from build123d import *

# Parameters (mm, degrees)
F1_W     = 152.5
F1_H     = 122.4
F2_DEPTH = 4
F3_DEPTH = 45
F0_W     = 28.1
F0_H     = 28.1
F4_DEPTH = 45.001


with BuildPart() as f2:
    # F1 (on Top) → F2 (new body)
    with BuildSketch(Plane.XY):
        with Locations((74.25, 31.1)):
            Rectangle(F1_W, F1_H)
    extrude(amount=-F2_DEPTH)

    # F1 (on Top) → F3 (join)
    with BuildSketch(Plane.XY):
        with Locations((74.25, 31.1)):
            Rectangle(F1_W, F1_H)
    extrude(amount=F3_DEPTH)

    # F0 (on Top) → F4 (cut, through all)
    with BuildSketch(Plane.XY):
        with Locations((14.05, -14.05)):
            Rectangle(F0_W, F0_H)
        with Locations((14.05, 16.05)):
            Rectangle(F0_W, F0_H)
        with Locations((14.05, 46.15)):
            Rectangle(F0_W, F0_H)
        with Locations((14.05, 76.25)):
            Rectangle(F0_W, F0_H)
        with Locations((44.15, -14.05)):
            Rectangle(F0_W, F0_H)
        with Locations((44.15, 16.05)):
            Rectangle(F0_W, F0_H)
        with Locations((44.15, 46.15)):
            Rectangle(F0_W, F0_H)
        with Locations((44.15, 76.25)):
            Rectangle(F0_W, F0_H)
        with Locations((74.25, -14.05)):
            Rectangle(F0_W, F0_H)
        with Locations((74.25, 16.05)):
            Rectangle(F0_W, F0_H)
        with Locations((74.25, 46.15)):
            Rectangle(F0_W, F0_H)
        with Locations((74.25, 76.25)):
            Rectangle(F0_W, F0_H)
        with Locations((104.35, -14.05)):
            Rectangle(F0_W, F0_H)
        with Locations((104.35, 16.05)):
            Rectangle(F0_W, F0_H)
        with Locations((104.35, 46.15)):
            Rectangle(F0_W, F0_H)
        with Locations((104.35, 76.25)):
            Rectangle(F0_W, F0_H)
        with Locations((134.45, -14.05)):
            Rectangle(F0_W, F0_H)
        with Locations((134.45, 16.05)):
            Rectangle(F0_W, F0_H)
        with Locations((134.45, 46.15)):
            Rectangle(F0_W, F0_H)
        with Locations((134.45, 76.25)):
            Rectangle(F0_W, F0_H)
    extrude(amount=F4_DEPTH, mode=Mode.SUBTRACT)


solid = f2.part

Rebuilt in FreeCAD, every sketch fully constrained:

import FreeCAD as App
import Part
import Sketcher

V = App.Vector


def add_polygon(sketch, points):
    """Adds a closed chain of lines whose ends are joined by coincident constraints."""
    first, n = sketch.GeometryCount, len(points)
    for a, b in zip(points, points[1:] + points[:1]):
        sketch.addGeometry(Part.LineSegment(App.Vector(*a, 0), App.Vector(*b, 0)), False)
    for i in range(n):
        sketch.addConstraint(Sketcher.Constraint("Coincident", first + i, 2, first + (i + 1) % n, 1))

doc = App.newDocument("Part")
body = doc.addObject("PartDesign::Body", "Body")

# Sketch on XY plane
sketch1 = body.newObject("Sketcher::SketchObject", "Sketch")
sketch1.AttachmentSupport = (doc.getObject("XY_Plane"), [""])
sketch1.MapMode = "FlatFace"
add_polygon(sketch1, [(-2, 92), (-2, -30), (150, -30), (150, 92)])  # lines 0-3
sketch1.addConstraint(Sketcher.Constraint("Vertical", 0))
sketch1.addConstraint(Sketcher.Constraint("Horizontal", 1))
sketch1.addConstraint(Sketcher.Constraint("Vertical", 2))
sketch1.addConstraint(Sketcher.Constraint("Horizontal", 3))
sketch1.addConstraint(Sketcher.Constraint("DistanceX", 1, 1, 1, 2, 152.5))
sketch1.addConstraint(Sketcher.Constraint("DistanceY", 0, 2, 0, 1, 122.4))
sketch1.addConstraint(Sketcher.Constraint("DistanceX", 0, 2, -1, 1, 2.0))
sketch1.addConstraint(Sketcher.Constraint("DistanceY", 0, 2, -1, 1, 30.1))
pad1 = body.newObject("PartDesign::Pad", "Pad")
pad1.Profile = sketch1
pad1.Length = 4
pad1.Reversed = True

# Sketch on XY plane
sketch2 = body.newObject("Sketcher::SketchObject", "Sketch001")
sketch2.AttachmentSupport = (doc.getObject("XY_Plane"), [""])
sketch2.MapMode = "FlatFace"
add_polygon(sketch2, [(-2, 92), (-2, -30), (150, -30), (150, 92)])  # lines 0-3
sketch2.addConstraint(Sketcher.Constraint("Vertical", 0))
sketch2.addConstraint(Sketcher.Constraint("Horizontal", 1))
sketch2.addConstraint(Sketcher.Constraint("Vertical", 2))
sketch2.addConstraint(Sketcher.Constraint("Horizontal", 3))
sketch2.addConstraint(Sketcher.Constraint("DistanceX", 1, 1, 1, 2, 152.5))
sketch2.addConstraint(Sketcher.Constraint("DistanceY", 0, 2, 0, 1, 122.4))
sketch2.addConstraint(Sketcher.Constraint("DistanceX", 0, 2, -1, 1, 2.0))
sketch2.addConstraint(Sketcher.Constraint("DistanceY", 0, 2, -1, 1, 30.1))
pad2 = body.newObject("PartDesign::Pad", "Pad001")
pad2.Profile = sketch2
pad2.Length = 45

# Sketch on XY plane
sketch3 = body.newObject("Sketcher::SketchObject", "Sketch002")
sketch3.AttachmentSupport = (doc.getObject("XY_Plane"), [""])
sketch3.MapMode = "FlatFace"
add_polygon(sketch3, [(0, 0), (0, -28), (28, -28), (28, 0)])  # lines 0-3
add_polygon(sketch3, [(0, 30), (0, 2), (28, 2), (28, 30)])  # lines 4-7
add_polygon(sketch3, [(0, 60), (0, 32), (28, 32), (28, 60)])  # lines 8-11
add_polygon(sketch3, [(0, 90), (0, 62), (28, 62), (28, 90)])  # lines 12-15
add_polygon(sketch3, [(30, 0), (30, -28), (58, -28), (58, 0)])  # lines 16-19
add_polygon(sketch3, [(30, 30), (30, 2), (58, 2), (58, 30)])  # lines 20-23
add_polygon(sketch3, [(30, 60), (30, 32), (58, 32), (58, 60)])  # lines 24-27
add_polygon(sketch3, [(30, 90), (30, 62), (58, 62), (58, 90)])  # lines 28-31
add_polygon(sketch3, [(60, 0), (60, -28), (88, -28), (88, 0)])  # lines 32-35
add_polygon(sketch3, [(60, 30), (60, 2), (88, 2), (88, 30)])  # lines 36-39
add_polygon(sketch3, [(60, 60), (60, 32), (88, 32), (88, 60)])  # lines 40-43
add_polygon(sketch3, [(60, 90), (60, 62), (88, 62), (88, 90)])  # lines 44-47
add_polygon(sketch3, [(90, 0), (90, -28), (118, -28), (118, 0)])  # lines 48-51
add_polygon(sketch3, [(90, 30), (90, 2), (118, 2), (118, 30)])  # lines 52-55
add_polygon(sketch3, [(90, 60), (90, 32), (118, 32), (118, 60)])  # lines 56-59
add_polygon(sketch3, [(90, 90), (90, 62), (118, 62), (118, 90)])  # lines 60-63
add_polygon(sketch3, [(120, 0), (120, -28), (148, -28), (148, 0)])  # lines 64-67
add_polygon(sketch3, [(120, 30), (120, 2), (148, 2), (148, 30)])  # lines 68-71
add_polygon(sketch3, [(120, 60), (120, 32), (148, 32), (148, 60)])  # lines 72-75
add_polygon(sketch3, [(120, 90), (120, 62), (148, 62), (148, 90)])  # lines 76-79
sketch3.addConstraint(Sketcher.Constraint("Vertical", 0))
sketch3.addConstraint(Sketcher.Constraint("Horizontal", 1))
sketch3.addConstraint(Sketcher.Constraint("Vertical", 2))
sketch3.addConstraint(Sketcher.Constraint("Horizontal", 3))
sketch3.addConstraint(Sketcher.Constraint("Vertical", 4))
sketch3.addConstraint(Sketcher.Constraint("Horizontal", 5))
sketch3.addConstraint(Sketcher.Constraint("Vertical", 6))
sketch3.addConstraint(Sketcher.Constraint("Horizontal", 7))
sketch3.addConstraint(Sketcher.Constraint("Vertical", 8))
sketch3.addConstraint(Sketcher.Constraint("Horizontal", 9))
sketch3.addConstraint(Sketcher.Constraint("Vertical", 10))
sketch3.addConstraint(Sketcher.Constraint("Horizontal", 11))
sketch3.addConstraint(Sketcher.Constraint("Vertical", 12))
sketch3.addConstraint(Sketcher.Constraint("Horizontal", 13))
sketch3.addConstraint(Sketcher.Constraint("Vertical", 14))
sketch3.addConstraint(Sketcher.Constraint("Horizontal", 15))
sketch3.addConstraint(Sketcher.Constraint("Vertical", 16))
sketch3.addConstraint(Sketcher.Constraint("Horizontal", 17))
sketch3.addConstraint(Sketcher.Constraint("Vertical", 18))
sketch3.addConstraint(Sketcher.Constraint("Horizontal", 19))
sketch3.addConstraint(Sketcher.Constraint("Vertical", 20))
sketch3.addConstraint(Sketcher.Constraint("Horizontal", 21))
sketch3.addConstraint(Sketcher.Constraint("Vertical", 22))
sketch3.addConstraint(Sketcher.Constraint("Horizontal", 23))
sketch3.addConstraint(Sketcher.Constraint("Vertical", 24))
sketch3.addConstraint(Sketcher.Constraint("Horizontal", 25))
sketch3.addConstraint(Sketcher.Constraint("Vertical", 26))
sketch3.addConstraint(Sketcher.Constraint("Horizontal", 27))
sketch3.addConstraint(Sketcher.Constraint("Vertical", 28))
sketch3.addConstraint(Sketcher.Constraint("Horizontal", 29))
sketch3.addConstraint(Sketcher.Constraint("Vertical", 30))
sketch3.addConstraint(Sketcher.Constraint("Horizontal", 31))
sketch3.addConstraint(Sketcher.Constraint("Vertical", 32))
sketch3.addConstraint(Sketcher.Constraint("Horizontal", 33))
sketch3.addConstraint(Sketcher.Constraint("Vertical", 34))
sketch3.addConstraint(Sketcher.Constraint("Horizontal", 35))
sketch3.addConstraint(Sketcher.Constraint("Vertical", 36))
sketch3.addConstraint(Sketcher.Constraint("Horizontal", 37))
sketch3.addConstraint(Sketcher.Constraint("Vertical", 38))
sketch3.addConstraint(Sketcher.Constraint("Horizontal", 39))
sketch3.addConstraint(Sketcher.Constraint("Vertical", 40))
sketch3.addConstraint(Sketcher.Constraint("Horizontal", 41))
sketch3.addConstraint(Sketcher.Constraint("Vertical", 42))
sketch3.addConstraint(Sketcher.Constraint("Horizontal", 43))
sketch3.addConstraint(Sketcher.Constraint("Vertical", 44))
sketch3.addConstraint(Sketcher.Constraint("Horizontal", 45))
sketch3.addConstraint(Sketcher.Constraint("Vertical", 46))
sketch3.addConstraint(Sketcher.Constraint("Horizontal", 47))
sketch3.addConstraint(Sketcher.Constraint("Vertical", 48))
sketch3.addConstraint(Sketcher.Constraint("Horizontal", 49))
sketch3.addConstraint(Sketcher.Constraint("Vertical", 50))
sketch3.addConstraint(Sketcher.Constraint("Horizontal", 51))
sketch3.addConstraint(Sketcher.Constraint("Vertical", 52))
sketch3.addConstraint(Sketcher.Constraint("Horizontal", 53))
sketch3.addConstraint(Sketcher.Constraint("Vertical", 54))
sketch3.addConstraint(Sketcher.Constraint("Horizontal", 55))
sketch3.addConstraint(Sketcher.Constraint("Vertical", 56))
sketch3.addConstraint(Sketcher.Constraint("Horizontal", 57))
sketch3.addConstraint(Sketcher.Constraint("Vertical", 58))
sketch3.addConstraint(Sketcher.Constraint("Horizontal", 59))
sketch3.addConstraint(Sketcher.Constraint("Vertical", 60))
sketch3.addConstraint(Sketcher.Constraint("Horizontal", 61))
sketch3.addConstraint(Sketcher.Constraint("Vertical", 62))
sketch3.addConstraint(Sketcher.Constraint("Horizontal", 63))
sketch3.addConstraint(Sketcher.Constraint("Vertical", 64))
sketch3.addConstraint(Sketcher.Constraint("Horizontal", 65))
sketch3.addConstraint(Sketcher.Constraint("Vertical", 66))
sketch3.addConstraint(Sketcher.Constraint("Horizontal", 67))
sketch3.addConstraint(Sketcher.Constraint("Vertical", 68))
sketch3.addConstraint(Sketcher.Constraint("Horizontal", 69))
sketch3.addConstraint(Sketcher.Constraint("Vertical", 70))
sketch3.addConstraint(Sketcher.Constraint("Horizontal", 71))
sketch3.addConstraint(Sketcher.Constraint("Vertical", 72))
sketch3.addConstraint(Sketcher.Constraint("Horizontal", 73))
sketch3.addConstraint(Sketcher.Constraint("Vertical", 74))
sketch3.addConstraint(Sketcher.Constraint("Horizontal", 75))
sketch3.addConstraint(Sketcher.Constraint("Vertical", 76))
sketch3.addConstraint(Sketcher.Constraint("Horizontal", 77))
sketch3.addConstraint(Sketcher.Constraint("Vertical", 78))
sketch3.addConstraint(Sketcher.Constraint("Horizontal", 79))
sketch3.addConstraint(Sketcher.Constraint("Coincident", 3, 2, -1, 1))
sketch3.addConstraint(Sketcher.Constraint("PointOnObject", 4, 2, -2))
sketch3.addConstraint(Sketcher.Constraint("PointOnObject", 8, 2, -2))
sketch3.addConstraint(Sketcher.Constraint("PointOnObject", 12, 2, -2))
sketch3.addConstraint(Sketcher.Constraint("PointOnObject", 18, 2, -1))
sketch3.addConstraint(Sketcher.Constraint("PointOnObject", 34, 2, -1))
sketch3.addConstraint(Sketcher.Constraint("PointOnObject", 50, 2, -1))
sketch3.addConstraint(Sketcher.Constraint("PointOnObject", 66, 2, -1))
sketch3.addConstraint(Sketcher.Constraint("Horizontal", 1, 2, 16, 2))
sketch3.addConstraint(Sketcher.Constraint("Horizontal", 5, 2, 20, 2))
sketch3.addConstraint(Sketcher.Constraint("Horizontal", 7, 2, 22, 2))
sketch3.addConstraint(Sketcher.Constraint("Horizontal", 9, 2, 24, 2))
sketch3.addConstraint(Sketcher.Constraint("Horizontal", 11, 2, 26, 2))
sketch3.addConstraint(Sketcher.Constraint("Horizontal", 13, 2, 28, 2))
sketch3.addConstraint(Sketcher.Constraint("Horizontal", 15, 2, 30, 2))
sketch3.addConstraint(Sketcher.Constraint("Horizontal", 17, 2, 32, 2))
sketch3.addConstraint(Sketcher.Constraint("Horizontal", 21, 2, 36, 2))
sketch3.addConstraint(Sketcher.Constraint("Horizontal", 23, 2, 38, 2))
sketch3.addConstraint(Sketcher.Constraint("Horizontal", 25, 2, 40, 2))
sketch3.addConstraint(Sketcher.Constraint("Horizontal", 27, 2, 42, 2))
sketch3.addConstraint(Sketcher.Constraint("Horizontal", 29, 2, 44, 2))
sketch3.addConstraint(Sketcher.Constraint("Horizontal", 31, 2, 46, 2))
sketch3.addConstraint(Sketcher.Constraint("Horizontal", 33, 2, 48, 2))
sketch3.addConstraint(Sketcher.Constraint("Horizontal", 37, 2, 52, 2))
sketch3.addConstraint(Sketcher.Constraint("Horizontal", 39, 2, 54, 2))
sketch3.addConstraint(Sketcher.Constraint("Horizontal", 41, 2, 56, 2))
sketch3.addConstraint(Sketcher.Constraint("Horizontal", 43, 2, 58, 2))
sketch3.addConstraint(Sketcher.Constraint("Horizontal", 45, 2, 60, 2))
sketch3.addConstraint(Sketcher.Constraint("Horizontal", 47, 2, 62, 2))
sketch3.addConstraint(Sketcher.Constraint("Horizontal", 49, 2, 64, 2))
sketch3.addConstraint(Sketcher.Constraint("Horizontal", 53, 2, 68, 2))
sketch3.addConstraint(Sketcher.Constraint("Horizontal", 55, 2, 70, 2))
sketch3.addConstraint(Sketcher.Constraint("Horizontal", 57, 2, 72, 2))
sketch3.addConstraint(Sketcher.Constraint("Horizontal", 59, 2, 74, 2))
sketch3.addConstraint(Sketcher.Constraint("Horizontal", 61, 2, 76, 2))
sketch3.addConstraint(Sketcher.Constraint("Horizontal", 63, 2, 78, 2))
sketch3.addConstraint(Sketcher.Constraint("Vertical", 2, 2, 5, 2))
sketch3.addConstraint(Sketcher.Constraint("Vertical", 6, 2, 9, 2))
sketch3.addConstraint(Sketcher.Constraint("Vertical", 10, 2, 13, 2))
sketch3.addConstraint(Sketcher.Constraint("Vertical", 19, 2, 20, 2))
sketch3.addConstraint(Sketcher.Constraint("Vertical", 18, 2, 21, 2))
sketch3.addConstraint(Sketcher.Constraint("Vertical", 23, 2, 24, 2))
sketch3.addConstraint(Sketcher.Constraint("Vertical", 22, 2, 25, 2))
sketch3.addConstraint(Sketcher.Constraint("Vertical", 27, 2, 28, 2))
sketch3.addConstraint(Sketcher.Constraint("Vertical", 26, 2, 29, 2))
sketch3.addConstraint(Sketcher.Constraint("Vertical", 35, 2, 36, 2))
sketch3.addConstraint(Sketcher.Constraint("Vertical", 34, 2, 37, 2))
sketch3.addConstraint(Sketcher.Constraint("Vertical", 39, 2, 40, 2))
sketch3.addConstraint(Sketcher.Constraint("Vertical", 38, 2, 41, 2))
sketch3.addConstraint(Sketcher.Constraint("Vertical", 43, 2, 44, 2))
sketch3.addConstraint(Sketcher.Constraint("Vertical", 42, 2, 45, 2))
sketch3.addConstraint(Sketcher.Constraint("Vertical", 51, 2, 52, 2))
sketch3.addConstraint(Sketcher.Constraint("Vertical", 50, 2, 53, 2))
sketch3.addConstraint(Sketcher.Constraint("Vertical", 55, 2, 56, 2))
sketch3.addConstraint(Sketcher.Constraint("Vertical", 54, 2, 57, 2))
sketch3.addConstraint(Sketcher.Constraint("Vertical", 59, 2, 60, 2))
sketch3.addConstraint(Sketcher.Constraint("Vertical", 58, 2, 61, 2))
sketch3.addConstraint(Sketcher.Constraint("Vertical", 67, 2, 68, 2))
sketch3.addConstraint(Sketcher.Constraint("Vertical", 66, 2, 69, 2))
sketch3.addConstraint(Sketcher.Constraint("Vertical", 71, 2, 72, 2))
sketch3.addConstraint(Sketcher.Constraint("Vertical", 70, 2, 73, 2))
sketch3.addConstraint(Sketcher.Constraint("Vertical", 75, 2, 76, 2))
sketch3.addConstraint(Sketcher.Constraint("Vertical", 74, 2, 77, 2))
sketch3.addConstraint(Sketcher.Constraint("Equal", 15, 17))
sketch3.addConstraint(Sketcher.Constraint("Equal", 31, 33))
sketch3.addConstraint(Sketcher.Constraint("Equal", 47, 49))
sketch3.addConstraint(Sketcher.Constraint("Equal", 63, 65))
sketch3.addConstraint(Sketcher.Constraint("Equal", 79, 0))
sketch3.addConstraint(Sketcher.Constraint("Equal", 2, 4))
sketch3.addConstraint(Sketcher.Constraint("Equal", 6, 8))
sketch3.addConstraint(Sketcher.Constraint("Equal", 10, 12))
sketch3.addConstraint(Sketcher.Constraint("DistanceX", 1, 1, 1, 2, 28.1))
sketch3.addConstraint(Sketcher.Constraint("DistanceY", -1, 1, 4, 2, 2.0))
sketch3.addConstraint(Sketcher.Constraint("DistanceY", -1, 1, 8, 2, 32.1))
sketch3.addConstraint(Sketcher.Constraint("DistanceY", -1, 1, 12, 2, 62.2))
sketch3.addConstraint(Sketcher.Constraint("DistanceX", -1, 1, 16, 2, 30.1))
sketch3.addConstraint(Sketcher.Constraint("DistanceX", -1, 1, 32, 2, 60.2))
sketch3.addConstraint(Sketcher.Constraint("DistanceX", -1, 1, 48, 2, 90.3))
sketch3.addConstraint(Sketcher.Constraint("DistanceX", -1, 1, 64, 2, 120.4))
pocket1 = body.newObject("PartDesign::Pocket", "Pocket")
pocket1.Profile = sketch3
pocket1.Type = "ThroughAll"
pocket1.Reversed = True

doc.recompute()
